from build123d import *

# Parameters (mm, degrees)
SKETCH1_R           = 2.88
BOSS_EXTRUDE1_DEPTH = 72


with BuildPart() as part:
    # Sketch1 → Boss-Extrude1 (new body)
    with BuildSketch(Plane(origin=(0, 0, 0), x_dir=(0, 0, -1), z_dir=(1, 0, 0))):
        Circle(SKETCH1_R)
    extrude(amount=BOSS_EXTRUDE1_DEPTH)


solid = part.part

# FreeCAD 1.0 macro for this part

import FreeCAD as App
import Part
import Sketcher

doc = App.newDocument("Part")
body = doc.addObject("PartDesign::Body", "Body")

sketch1 = body.newObject("Sketcher::SketchObject", "Sketch")
sketch1.AttachmentSupport = (doc.getObject("YZ_Plane"), [""])
sketch1.MapMode = "FlatFace"
sketch1.addGeometry(Part.Circle(App.Vector(0, 0, 0), App.Vector(0, 0, 1), 2.88), False)
sketch1.addConstraint([
    Sketcher.Constraint("Coincident", 0, 3, -1, 1),
    Sketcher.Constraint("Diameter", 0, 5.76),
])
pad1 = body.newObject("PartDesign::Pad", "Pad")
pad1.Profile = sketch1
pad1.Length = 72

doc.recompute()
